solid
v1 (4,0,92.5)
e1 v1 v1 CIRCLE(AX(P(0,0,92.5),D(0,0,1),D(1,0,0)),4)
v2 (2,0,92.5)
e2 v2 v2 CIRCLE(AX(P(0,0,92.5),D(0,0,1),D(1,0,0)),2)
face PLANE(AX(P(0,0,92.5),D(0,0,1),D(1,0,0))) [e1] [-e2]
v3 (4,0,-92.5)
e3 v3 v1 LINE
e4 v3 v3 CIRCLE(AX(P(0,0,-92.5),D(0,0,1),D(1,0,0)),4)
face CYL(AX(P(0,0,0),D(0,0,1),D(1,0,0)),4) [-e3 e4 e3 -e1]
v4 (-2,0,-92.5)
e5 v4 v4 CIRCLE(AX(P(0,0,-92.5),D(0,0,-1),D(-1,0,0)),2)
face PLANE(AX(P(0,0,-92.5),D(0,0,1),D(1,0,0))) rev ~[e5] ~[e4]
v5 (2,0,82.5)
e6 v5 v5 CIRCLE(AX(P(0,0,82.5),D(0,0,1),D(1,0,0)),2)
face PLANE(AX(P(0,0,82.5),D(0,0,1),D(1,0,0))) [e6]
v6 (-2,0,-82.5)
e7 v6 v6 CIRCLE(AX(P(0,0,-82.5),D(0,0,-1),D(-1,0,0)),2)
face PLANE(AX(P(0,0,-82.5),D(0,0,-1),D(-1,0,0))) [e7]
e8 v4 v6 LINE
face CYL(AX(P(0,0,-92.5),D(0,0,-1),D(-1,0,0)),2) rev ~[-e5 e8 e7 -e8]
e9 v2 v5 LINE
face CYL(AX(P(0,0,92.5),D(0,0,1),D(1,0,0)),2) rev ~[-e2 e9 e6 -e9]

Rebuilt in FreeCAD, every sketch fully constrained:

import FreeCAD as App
import Part
import Sketcher

V = App.Vector

doc = App.newDocument("Part")
body = doc.addObject("PartDesign::Body", "Body")

sketch1 = body.newObject("Sketcher::SketchObject", "Sketch")
sketch1.AttachmentSupport = (doc.getObject("XY_Plane"), [""])
sketch1.MapMode = "FlatFace"
sketch1.addGeometry(Part.Circle(V(0, 0, 0), V(0, 0, 1), 4), False)
sketch1.addConstraint([
    Sketcher.Constraint("Coincident", 0, 3, -1, 1),
    Sketcher.Constraint("Diameter", 0, 8.0),
])
pad1 = body.newObject("PartDesign::Pad", "Pad")
pad1.Profile = sketch1
pad1.Length = 185
pad1.Midplane = True

sketch2 = body.newObject("Sketcher::SketchObject", "Sketch001")
sketch2.AttachmentSupport = (doc.getObject("XY_Plane"), [""])
sketch2.MapMode = "FlatFace"
sketch2.AttachmentOffset = App.Placement(V(0, 0, 92.5), App.Rotation())
sketch2.addGeometry(Part.Circle(V(0, 0, 0), V(0, 0, 1), 2), False)
sketch2.addConstraint([
    Sketcher.Constraint("Coincident", 0, 3, -1, 1),
    Sketcher.Constraint("Diameter", 0, 4.0),
])
pocket1 = body.newObject("PartDesign::Pocket", "Pocket")
pocket1.Profile = sketch2
pocket1.Length = 10

sketch3 = body.newObject("Sketcher::SketchObject", "Sketch002")
sketch3.AttachmentSupport = (doc.getObject("XY_Plane"), [""])
sketch3.MapMode = "FlatFace"
sketch3.AttachmentOffset = App.Placement(V(0, 0, -92.5), App.Rotation())
sketch3.addGeometry(Part.Circle(V(0, 0, 0), V(0, 0, 1), 2), False)
sketch3.addConstraint([
    Sketcher.Constraint("Coincident", 0, 3, -1, 1),
    Sketcher.Constraint("Diameter", 0, 4.0),
])
pocket2 = body.newObject("PartDesign::Pocket", "Pocket001")
pocket2.Profile = sketch3
pocket2.Length = 10
pocket2.Reversed = True

doc.recompute()
